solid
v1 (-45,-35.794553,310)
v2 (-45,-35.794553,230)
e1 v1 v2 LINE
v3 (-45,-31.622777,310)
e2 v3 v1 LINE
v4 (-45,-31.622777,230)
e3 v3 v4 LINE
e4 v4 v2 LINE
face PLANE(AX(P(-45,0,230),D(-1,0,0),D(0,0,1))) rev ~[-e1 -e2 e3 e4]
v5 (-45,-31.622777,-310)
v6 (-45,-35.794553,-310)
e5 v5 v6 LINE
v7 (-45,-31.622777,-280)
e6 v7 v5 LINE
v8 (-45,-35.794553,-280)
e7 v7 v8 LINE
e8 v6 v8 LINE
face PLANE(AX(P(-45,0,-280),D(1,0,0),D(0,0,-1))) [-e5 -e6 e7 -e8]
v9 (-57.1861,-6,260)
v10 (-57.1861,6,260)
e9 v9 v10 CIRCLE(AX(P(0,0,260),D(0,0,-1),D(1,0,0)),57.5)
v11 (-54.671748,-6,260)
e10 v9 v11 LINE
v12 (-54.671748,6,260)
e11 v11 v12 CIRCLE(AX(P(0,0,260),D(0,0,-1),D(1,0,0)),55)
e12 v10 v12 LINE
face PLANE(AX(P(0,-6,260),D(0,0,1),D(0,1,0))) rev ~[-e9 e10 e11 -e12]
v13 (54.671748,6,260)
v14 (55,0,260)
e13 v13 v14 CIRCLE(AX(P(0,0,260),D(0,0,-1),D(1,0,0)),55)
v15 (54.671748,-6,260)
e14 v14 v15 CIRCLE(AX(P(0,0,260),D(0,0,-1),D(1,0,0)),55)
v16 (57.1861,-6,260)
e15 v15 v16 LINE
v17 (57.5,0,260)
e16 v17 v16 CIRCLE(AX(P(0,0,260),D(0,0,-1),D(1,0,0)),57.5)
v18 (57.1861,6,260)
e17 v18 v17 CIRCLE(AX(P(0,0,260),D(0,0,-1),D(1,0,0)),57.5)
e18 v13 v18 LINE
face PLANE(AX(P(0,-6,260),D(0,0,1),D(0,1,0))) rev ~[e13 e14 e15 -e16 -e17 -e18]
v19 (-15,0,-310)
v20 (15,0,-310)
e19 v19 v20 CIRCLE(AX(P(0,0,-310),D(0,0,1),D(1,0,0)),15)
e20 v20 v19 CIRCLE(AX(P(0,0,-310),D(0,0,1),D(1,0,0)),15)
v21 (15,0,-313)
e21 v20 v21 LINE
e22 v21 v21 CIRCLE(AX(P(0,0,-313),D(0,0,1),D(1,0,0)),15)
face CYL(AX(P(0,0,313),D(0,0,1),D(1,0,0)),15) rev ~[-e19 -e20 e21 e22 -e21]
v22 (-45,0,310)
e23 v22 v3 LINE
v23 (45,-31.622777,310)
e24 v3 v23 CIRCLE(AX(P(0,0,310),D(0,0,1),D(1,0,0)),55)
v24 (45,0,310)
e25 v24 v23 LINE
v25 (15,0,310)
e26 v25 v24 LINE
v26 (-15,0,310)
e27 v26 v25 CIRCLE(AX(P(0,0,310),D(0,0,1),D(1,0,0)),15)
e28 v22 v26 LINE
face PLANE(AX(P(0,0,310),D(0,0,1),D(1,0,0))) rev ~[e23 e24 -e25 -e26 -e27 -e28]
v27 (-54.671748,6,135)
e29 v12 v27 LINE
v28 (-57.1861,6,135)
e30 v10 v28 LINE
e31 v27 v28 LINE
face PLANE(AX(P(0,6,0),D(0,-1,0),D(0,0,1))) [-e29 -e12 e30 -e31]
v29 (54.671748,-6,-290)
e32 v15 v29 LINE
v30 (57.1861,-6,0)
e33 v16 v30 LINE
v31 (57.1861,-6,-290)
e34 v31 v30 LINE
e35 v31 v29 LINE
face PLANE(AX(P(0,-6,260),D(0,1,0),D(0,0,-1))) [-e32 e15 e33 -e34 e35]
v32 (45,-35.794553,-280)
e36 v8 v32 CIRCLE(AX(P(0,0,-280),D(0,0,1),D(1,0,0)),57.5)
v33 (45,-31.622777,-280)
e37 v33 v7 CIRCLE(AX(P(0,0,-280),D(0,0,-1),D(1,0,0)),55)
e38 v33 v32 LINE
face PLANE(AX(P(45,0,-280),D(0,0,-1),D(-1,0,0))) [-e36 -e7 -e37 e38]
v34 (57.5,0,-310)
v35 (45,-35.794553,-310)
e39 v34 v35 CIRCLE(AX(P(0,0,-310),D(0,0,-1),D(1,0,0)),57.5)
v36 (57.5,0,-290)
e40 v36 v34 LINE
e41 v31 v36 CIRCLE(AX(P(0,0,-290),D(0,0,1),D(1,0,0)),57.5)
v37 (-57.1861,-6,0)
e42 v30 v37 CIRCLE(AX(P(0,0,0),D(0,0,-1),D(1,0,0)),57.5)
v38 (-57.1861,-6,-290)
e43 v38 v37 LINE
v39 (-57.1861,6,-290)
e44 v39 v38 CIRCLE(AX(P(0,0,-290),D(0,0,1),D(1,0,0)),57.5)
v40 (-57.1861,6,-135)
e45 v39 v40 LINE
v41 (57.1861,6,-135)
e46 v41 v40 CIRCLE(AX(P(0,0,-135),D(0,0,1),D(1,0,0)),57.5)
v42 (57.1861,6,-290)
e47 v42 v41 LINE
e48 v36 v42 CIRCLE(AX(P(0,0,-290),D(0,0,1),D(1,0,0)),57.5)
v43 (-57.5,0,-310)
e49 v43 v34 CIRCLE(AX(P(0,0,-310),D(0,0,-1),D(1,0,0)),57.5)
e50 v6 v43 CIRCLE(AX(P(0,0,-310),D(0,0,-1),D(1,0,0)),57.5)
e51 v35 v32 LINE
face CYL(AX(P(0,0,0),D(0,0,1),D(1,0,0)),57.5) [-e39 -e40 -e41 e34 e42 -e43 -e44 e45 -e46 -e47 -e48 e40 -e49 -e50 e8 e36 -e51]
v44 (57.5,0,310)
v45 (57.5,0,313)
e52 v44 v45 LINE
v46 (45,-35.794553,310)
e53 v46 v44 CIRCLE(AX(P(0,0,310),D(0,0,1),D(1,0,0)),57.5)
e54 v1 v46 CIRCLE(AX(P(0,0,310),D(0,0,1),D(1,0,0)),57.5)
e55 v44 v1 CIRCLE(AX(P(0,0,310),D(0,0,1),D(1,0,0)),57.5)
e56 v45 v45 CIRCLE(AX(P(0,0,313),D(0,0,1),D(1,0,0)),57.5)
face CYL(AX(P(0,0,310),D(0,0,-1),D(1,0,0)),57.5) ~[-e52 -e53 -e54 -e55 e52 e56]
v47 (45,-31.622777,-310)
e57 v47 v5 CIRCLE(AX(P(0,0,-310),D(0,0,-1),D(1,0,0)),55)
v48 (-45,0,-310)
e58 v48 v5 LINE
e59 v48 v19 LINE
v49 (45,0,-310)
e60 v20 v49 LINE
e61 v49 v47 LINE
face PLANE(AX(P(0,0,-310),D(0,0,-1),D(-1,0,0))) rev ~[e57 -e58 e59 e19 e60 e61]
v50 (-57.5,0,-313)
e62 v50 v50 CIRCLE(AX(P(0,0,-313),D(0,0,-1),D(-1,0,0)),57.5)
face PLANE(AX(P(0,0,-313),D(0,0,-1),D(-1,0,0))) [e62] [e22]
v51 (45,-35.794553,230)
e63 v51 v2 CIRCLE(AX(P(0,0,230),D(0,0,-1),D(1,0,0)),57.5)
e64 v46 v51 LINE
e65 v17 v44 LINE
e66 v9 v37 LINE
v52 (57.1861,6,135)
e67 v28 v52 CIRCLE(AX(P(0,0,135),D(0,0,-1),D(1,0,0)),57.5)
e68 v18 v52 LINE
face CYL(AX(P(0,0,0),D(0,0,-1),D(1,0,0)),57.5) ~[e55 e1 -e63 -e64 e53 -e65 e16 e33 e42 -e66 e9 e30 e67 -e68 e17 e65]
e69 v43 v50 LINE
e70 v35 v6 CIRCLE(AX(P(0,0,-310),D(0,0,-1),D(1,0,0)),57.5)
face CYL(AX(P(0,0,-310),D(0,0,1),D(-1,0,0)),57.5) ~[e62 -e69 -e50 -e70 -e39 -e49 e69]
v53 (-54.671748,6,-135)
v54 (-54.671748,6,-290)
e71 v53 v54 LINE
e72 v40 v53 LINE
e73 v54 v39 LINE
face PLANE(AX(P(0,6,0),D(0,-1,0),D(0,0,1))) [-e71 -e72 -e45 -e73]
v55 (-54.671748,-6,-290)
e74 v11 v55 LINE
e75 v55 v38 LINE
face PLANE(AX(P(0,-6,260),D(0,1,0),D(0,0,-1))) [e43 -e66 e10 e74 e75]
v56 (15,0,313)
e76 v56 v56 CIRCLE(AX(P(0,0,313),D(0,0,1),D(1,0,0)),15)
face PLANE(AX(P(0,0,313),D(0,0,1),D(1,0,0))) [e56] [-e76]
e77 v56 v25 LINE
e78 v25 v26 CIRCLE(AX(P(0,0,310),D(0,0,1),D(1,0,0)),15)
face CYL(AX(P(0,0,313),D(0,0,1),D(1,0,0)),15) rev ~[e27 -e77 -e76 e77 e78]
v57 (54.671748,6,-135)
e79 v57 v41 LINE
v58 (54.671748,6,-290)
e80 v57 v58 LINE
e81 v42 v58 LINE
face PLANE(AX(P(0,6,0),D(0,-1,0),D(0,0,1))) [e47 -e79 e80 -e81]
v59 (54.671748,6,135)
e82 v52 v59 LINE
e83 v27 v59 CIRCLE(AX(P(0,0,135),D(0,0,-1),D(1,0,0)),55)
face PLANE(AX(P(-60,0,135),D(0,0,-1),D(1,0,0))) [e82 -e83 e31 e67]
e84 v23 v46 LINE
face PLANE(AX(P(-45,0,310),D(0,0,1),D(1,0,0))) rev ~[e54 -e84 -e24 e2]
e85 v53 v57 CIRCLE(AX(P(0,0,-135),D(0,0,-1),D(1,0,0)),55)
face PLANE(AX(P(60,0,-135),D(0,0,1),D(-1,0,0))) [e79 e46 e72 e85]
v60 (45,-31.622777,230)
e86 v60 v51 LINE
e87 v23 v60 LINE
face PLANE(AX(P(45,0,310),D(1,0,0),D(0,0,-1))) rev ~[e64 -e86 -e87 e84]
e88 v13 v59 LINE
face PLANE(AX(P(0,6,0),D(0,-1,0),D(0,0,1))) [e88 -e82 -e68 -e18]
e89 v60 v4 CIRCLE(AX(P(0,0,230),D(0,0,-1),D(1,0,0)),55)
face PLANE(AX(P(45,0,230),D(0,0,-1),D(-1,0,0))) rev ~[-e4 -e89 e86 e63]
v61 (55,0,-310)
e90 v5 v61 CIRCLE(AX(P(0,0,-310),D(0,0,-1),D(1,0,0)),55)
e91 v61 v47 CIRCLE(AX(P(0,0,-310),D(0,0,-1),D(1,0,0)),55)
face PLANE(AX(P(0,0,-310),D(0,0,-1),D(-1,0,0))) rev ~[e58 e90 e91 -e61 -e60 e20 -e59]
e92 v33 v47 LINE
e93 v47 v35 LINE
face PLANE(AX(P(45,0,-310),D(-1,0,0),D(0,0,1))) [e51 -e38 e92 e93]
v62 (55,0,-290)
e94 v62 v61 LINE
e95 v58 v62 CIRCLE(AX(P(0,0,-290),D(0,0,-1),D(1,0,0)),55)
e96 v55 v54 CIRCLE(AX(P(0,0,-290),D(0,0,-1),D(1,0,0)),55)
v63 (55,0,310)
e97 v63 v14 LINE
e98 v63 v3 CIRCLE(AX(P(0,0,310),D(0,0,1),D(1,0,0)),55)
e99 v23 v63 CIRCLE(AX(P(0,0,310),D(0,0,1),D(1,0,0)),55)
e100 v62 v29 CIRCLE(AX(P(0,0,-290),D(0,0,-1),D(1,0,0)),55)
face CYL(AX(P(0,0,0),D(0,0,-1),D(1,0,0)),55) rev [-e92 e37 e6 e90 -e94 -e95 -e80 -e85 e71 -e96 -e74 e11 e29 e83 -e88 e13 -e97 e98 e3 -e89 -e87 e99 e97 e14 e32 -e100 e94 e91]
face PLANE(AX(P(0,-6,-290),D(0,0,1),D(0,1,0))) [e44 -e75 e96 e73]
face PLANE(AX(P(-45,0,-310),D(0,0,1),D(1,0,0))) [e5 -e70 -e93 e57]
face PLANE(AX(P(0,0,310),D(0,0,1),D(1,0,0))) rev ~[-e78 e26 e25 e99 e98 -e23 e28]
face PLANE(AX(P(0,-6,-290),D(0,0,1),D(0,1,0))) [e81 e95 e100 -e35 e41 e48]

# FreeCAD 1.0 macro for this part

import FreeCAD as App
import Part
import Sketcher

V = App.Vector

doc = App.newDocument("Part")
body = doc.addObject("PartDesign::Body", "Body")

# Sketch on XY plane
sketch1 = body.newObject("Sketcher::SketchObject", "Sketch")
sketch1.AttachmentSupport = (doc.getObject("XY_Plane"), [""])
sketch1.MapMode = "FlatFace"
sketch1.addGeometry([
    Part.Circle(V(0, 0, 0), V(0, 0, 1), 58),
    Part.Circle(V(0, 0, 0), V(0, 0, 1), 55),
], False)
sketch1.addConstraint([
    Sketcher.Constraint("Coincident", 0, 3, -1, 1),
    Sketcher.Constraint("Coincident", 1, 3, -1, 1),
    Sketcher.Constraint("Diameter", 0, 115.0),
    Sketcher.Constraint("Diameter", 1, 110.0),
])
pad1 = body.newObject("PartDesign::Pad", "Pad")
pad1.Profile = sketch1
pad1.Length = 620
pad1.Midplane = True

# Sketch on XY plane
sketch2 = body.newObject("Sketcher::SketchObject", "Sketch001")
sketch2.AttachmentSupport = (doc.getObject("XY_Plane"), [""])
sketch2.MapMode = "FlatFace"
sketch2.AttachmentOffset = App.Placement(V(0, 0, 310), App.Rotation())
sketch2.addGeometry(Part.Circle(V(0, 0, 0), V(0, 0, 1), 58), False)
sketch2.addConstraint([
    Sketcher.Constraint("Coincident", 0, 3, -1, 1),
    Sketcher.Constraint("Diameter", 0, 115.0),
])
pad2 = body.newObject("PartDesign::Pad", "Pad001")
pad2.Profile = sketch2
pad2.Length = 3

# Sketch on XY plane
sketch3 = body.newObject("Sketcher::SketchObject", "Sketch002")
sketch3.AttachmentSupport = (doc.getObject("XY_Plane"), [""])
sketch3.MapMode = "FlatFace"
sketch3.AttachmentOffset = App.Placement(V(0, 0, -310), App.Rotation())
sketch3.addGeometry(Part.Circle(V(0, 0, 0), V(0, 0, 1), 58), False)
sketch3.addConstraint([
    Sketcher.Constraint("Coincident", 0, 3, -1, 1),
    Sketcher.Constraint("Diameter", 0, 115.0),
])
pad3 = body.newObject("PartDesign::Pad", "Pad002")
pad3.Profile = sketch3
pad3.Length = 3
pad3.Reversed = True

# Sketch on XZ plane
sketch4 = body.newObject("Sketcher::SketchObject", "Sketch003")
sketch4.AttachmentSupport = (doc.getObject("XZ_Plane"), [""])
sketch4.MapMode = "FlatFace"
sketch4.addGeometry([
    Part.LineSegment(V(-45, 230, 0), V(-45, 310, 0)),  # 0
    Part.LineSegment(V(-45, 310, 0), V(45, 310, 0)),  # 1
    Part.LineSegment(V(45, 310, 0), V(45, 230, 0)),  # 2
    Part.LineSegment(V(45, 230, 0), V(-45, 230, 0)),  # 3
    Part.LineSegment(V(-45, -280, 0), V(45, -280, 0)),  # 4
    Part.LineSegment(V(45, -280, 0), V(45, -310, 0)),  # 5
    Part.LineSegment(V(45, -310, 0), V(-45, -310, 0)),  # 6
    Part.LineSegment(V(-45, -310, 0), V(-45, -280, 0)),  # 7
], False)
sketch4.addConstraint([
    Sketcher.Constraint("Coincident", 0, 2, 1, 1),
    Sketcher.Constraint("Coincident", 1, 2, 2, 1),
    Sketcher.Constraint("Coincident", 2, 2, 3, 1),
    Sketcher.Constraint("Coincident", 3, 2, 0, 1),
    Sketcher.Constraint("Coincident", 4, 2, 5, 1),
    Sketcher.Constraint("Coincident", 5, 2, 6, 1),
    Sketcher.Constraint("Coincident", 6, 2, 7, 1),
    Sketcher.Constraint("Coincident", 7, 2, 4, 1),
    Sketcher.Constraint("Vertical", 0),
    Sketcher.Constraint("Horizontal", 1),
    Sketcher.Constraint("Vertical", 2),
    Sketcher.Constraint("Horizontal", 3),
    Sketcher.Constraint("Horizontal", 4),
    Sketcher.Constraint("Vertical", 5),
    Sketcher.Constraint("Horizontal", 6),
    Sketcher.Constraint("Vertical", 7),
    Sketcher.Constraint("Symmetric", 0, 2, 5, 2, -1, 1),
    Sketcher.Constraint("Vertical", 2, 2, 4, 2),
    Sketcher.Constraint("Vertical", 3, 2, 6, 2),
    Sketcher.Constraint("DistanceX", 1, 1, 1, 2, 90.0),
    Sketcher.Constraint("DistanceY", 0, 1, 0, 2, 80.0),
    Sketcher.Constraint("DistanceY", 5, 2, 5, 1, 30.0),
    Sketcher.Constraint("DistanceY", -1, 1, 0, 2, 310.0),
])
pocket1 = body.newObject("PartDesign::Pocket", "Pocket")
pocket1.Profile = sketch4
pocket1.Length = 80
pocket1.Reversed = True

# Sketch on XZ plane
sketch5 = body.newObject("Sketcher::SketchObject", "Sketch004")
sketch5.AttachmentSupport = (doc.getObject("XZ_Plane"), [""])
sketch5.MapMode = "FlatFace"
sketch5.addGeometry([
    Part.LineSegment(V(-60, -135, 0), V(-60, 135, 0)),
    Part.LineSegment(V(-60, 135, 0), V(60, 135, 0)),
    Part.LineSegment(V(60, 135, 0), V(60, -135, 0)),
    Part.LineSegment(V(60, -135, 0), V(-60, -135, 0)),
], False)
sketch5.addConstraint([
    Sketcher.Constraint("Coincident", 0, 2, 1, 1),
    Sketcher.Constraint("Coincident", 1, 2, 2, 1),
    Sketcher.Constraint("Coincident", 2, 2, 3, 1),
    Sketcher.Constraint("Coincident", 3, 2, 0, 1),
    Sketcher.Constraint("Vertical", 0),
    Sketcher.Constraint("Horizontal", 1),
    Sketcher.Constraint("Vertical", 2),
    Sketcher.Constraint("Horizontal", 3),
    Sketcher.Constraint("Symmetric", 0, 2, 2, 2, -1, 1),
    Sketcher.Constraint("DistanceX", 1, 1, 1, 2, 120.0),
    Sketcher.Constraint("DistanceY", 0, 1, 0, 2, 270.0),
])
pocket2 = body.newObject("PartDesign::Pocket", "Pocket001")
pocket2.Profile = sketch5
pocket2.Length = 100

# Sketch on YZ plane
sketch6 = body.newObject("Sketcher::SketchObject", "Sketch005")
sketch6.AttachmentSupport = (doc.getObject("YZ_Plane"), [""])
sketch6.MapMode = "FlatFace"
sketch6.addGeometry([
    Part.LineSegment(V(6, 260, 0), V(-6, 260, 0)),
    Part.LineSegment(V(-6, 260, 0), V(-6, -290, 0)),
    Part.LineSegment(V(-6, -290, 0), V(6, -290, 0)),
    Part.LineSegment(V(6, -290, 0), V(6, 260, 0)),
], False)
sketch6.addConstraint([
    Sketcher.Constraint("Coincident", 0, 2, 1, 1),
    Sketcher.Constraint("Coincident", 1, 2, 2, 1),
    Sketcher.Constraint("Coincident", 2, 2, 3, 1),
    Sketcher.Constraint("Coincident", 3, 2, 0, 1),
    Sketcher.Constraint("Horizontal", 0),
    Sketcher.Constraint("Vertical", 1),
    Sketcher.Constraint("Horizontal", 2),
    Sketcher.Constraint("Vertical", 3),
    Sketcher.Constraint("DistanceX", 0, 2, 0, 1, 12.0),
    Sketcher.Constraint("DistanceY", -1, 1, 0, 2, 260.0),
    Sketcher.Constraint("DistanceY", 1, 2, -1, 1, 290.0),
    Sketcher.Constraint("DistanceX", 0, 2, -1, 1, 6.0),
])
pocket3 = body.newObject("PartDesign::Pocket", "Pocket002")
pocket3.Profile = sketch6
pocket3.Length = 200
pocket3.Midplane = True

# Sketch on XY plane
sketch7 = body.newObject("Sketcher::SketchObject", "Sketch006")
sketch7.AttachmentSupport = (doc.getObject("XY_Plane"), [""])
sketch7.MapMode = "FlatFace"
sketch7.AttachmentOffset = App.Placement(V(0, 0, 313), App.Rotation())
sketch7.addGeometry(Part.Circle(V(0, 0, 0), V(0, 0, 1), 15), False)
sketch7.addConstraint([
    Sketcher.Constraint("Coincident", 0, 3, -1, 1),
    Sketcher.Constraint("Diameter", 0, 30.0),
])
pocket4 = body.newObject("PartDesign::Pocket", "Pocket003")
pocket4.Profile = sketch7
pocket4.Length = 1000

doc.recompute()
